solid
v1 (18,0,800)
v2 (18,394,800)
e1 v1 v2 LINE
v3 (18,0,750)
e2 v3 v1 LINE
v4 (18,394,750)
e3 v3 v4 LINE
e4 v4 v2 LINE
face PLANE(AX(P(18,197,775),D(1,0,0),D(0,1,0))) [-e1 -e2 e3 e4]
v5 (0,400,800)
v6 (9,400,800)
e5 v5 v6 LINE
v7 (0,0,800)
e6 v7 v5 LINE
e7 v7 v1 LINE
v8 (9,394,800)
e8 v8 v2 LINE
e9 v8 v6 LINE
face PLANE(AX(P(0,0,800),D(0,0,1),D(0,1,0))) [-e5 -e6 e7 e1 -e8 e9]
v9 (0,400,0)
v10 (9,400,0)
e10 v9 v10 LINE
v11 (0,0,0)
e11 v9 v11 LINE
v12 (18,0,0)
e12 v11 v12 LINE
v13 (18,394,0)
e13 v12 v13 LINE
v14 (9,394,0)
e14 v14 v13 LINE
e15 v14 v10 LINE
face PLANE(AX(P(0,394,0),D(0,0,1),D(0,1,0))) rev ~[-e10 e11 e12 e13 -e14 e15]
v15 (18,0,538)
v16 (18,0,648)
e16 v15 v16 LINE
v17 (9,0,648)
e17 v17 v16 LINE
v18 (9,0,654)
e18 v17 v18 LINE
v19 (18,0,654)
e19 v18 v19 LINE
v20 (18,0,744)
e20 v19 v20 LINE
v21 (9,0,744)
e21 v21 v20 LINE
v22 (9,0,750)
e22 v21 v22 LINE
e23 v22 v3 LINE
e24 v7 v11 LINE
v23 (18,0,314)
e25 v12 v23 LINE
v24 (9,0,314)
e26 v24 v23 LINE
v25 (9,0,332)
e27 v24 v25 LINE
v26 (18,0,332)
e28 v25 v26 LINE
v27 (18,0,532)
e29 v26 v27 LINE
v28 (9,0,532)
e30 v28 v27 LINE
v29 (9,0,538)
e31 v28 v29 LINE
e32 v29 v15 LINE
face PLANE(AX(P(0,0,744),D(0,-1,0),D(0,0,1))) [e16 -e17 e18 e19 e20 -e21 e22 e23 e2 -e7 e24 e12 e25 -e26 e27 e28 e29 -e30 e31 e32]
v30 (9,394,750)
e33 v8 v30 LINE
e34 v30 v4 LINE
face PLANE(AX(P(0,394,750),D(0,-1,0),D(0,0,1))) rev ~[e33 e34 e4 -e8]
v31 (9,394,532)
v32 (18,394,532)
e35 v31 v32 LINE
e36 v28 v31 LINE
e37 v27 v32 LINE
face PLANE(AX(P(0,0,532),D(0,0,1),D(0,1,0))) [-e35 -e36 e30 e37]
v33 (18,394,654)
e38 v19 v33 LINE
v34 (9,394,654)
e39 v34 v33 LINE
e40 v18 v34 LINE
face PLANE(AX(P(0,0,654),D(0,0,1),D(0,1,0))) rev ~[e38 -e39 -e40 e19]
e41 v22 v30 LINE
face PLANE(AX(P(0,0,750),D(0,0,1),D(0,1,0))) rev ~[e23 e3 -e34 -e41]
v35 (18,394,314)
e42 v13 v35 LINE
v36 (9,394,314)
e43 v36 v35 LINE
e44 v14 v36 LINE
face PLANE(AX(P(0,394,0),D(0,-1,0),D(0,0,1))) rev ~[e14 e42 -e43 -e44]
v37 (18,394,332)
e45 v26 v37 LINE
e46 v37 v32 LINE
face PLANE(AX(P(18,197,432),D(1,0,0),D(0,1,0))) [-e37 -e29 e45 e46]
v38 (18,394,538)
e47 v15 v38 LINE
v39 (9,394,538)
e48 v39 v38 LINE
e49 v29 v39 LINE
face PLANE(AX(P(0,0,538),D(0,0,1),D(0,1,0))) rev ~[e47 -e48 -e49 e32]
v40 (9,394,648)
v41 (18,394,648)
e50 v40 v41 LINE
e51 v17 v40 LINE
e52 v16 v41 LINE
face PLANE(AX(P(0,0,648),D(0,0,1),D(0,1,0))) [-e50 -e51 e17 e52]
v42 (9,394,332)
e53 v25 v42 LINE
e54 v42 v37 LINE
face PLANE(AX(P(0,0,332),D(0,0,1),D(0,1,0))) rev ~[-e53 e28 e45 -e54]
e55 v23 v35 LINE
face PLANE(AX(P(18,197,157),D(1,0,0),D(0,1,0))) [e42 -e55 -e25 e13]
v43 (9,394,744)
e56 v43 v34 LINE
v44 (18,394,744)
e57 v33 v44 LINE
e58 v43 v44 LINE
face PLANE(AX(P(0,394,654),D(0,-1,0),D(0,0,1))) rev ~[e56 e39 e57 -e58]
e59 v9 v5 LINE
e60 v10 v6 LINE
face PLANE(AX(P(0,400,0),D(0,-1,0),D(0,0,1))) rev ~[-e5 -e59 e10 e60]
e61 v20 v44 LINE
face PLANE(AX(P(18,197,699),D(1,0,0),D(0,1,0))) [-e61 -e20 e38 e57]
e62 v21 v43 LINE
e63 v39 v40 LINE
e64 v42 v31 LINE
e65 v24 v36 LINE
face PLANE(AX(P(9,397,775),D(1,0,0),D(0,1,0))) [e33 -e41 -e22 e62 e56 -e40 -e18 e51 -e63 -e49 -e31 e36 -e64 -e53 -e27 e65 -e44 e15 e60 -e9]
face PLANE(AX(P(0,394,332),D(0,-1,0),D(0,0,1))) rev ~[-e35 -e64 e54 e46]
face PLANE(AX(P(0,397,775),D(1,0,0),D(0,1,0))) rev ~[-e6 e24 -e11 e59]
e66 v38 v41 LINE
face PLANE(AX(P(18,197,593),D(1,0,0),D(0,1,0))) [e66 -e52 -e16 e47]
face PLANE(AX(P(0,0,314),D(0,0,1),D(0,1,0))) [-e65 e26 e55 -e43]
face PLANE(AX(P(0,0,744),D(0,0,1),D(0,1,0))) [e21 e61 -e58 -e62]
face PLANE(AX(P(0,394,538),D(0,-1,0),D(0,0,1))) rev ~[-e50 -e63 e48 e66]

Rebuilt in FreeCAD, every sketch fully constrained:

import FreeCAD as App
import Part
import Sketcher
from FreeCAD import Vector


def add_polygon(sketch, points):
    """Adds a closed chain of lines whose ends are joined by coincident constraints."""
    first, n = sketch.GeometryCount, len(points)
    for a, b in zip(points, points[1:] + points[:1]):
        sketch.addGeometry(Part.LineSegment(App.Vector(*a, 0), App.Vector(*b, 0)), False)
    for i in range(n):
        sketch.addConstraint(Sketcher.Constraint("Coincident", first + i, 2, first + (i + 1) % n, 1))

doc = App.newDocument("Part")
params = doc.addObject("Spreadsheet::Sheet", "Params")
for row, (alias, value) in enumerate([
    ("sketch1_width", "394 mm"),
    ("sketch1_height", "50 mm"),
    ("pad1_length", "18 mm"),
    ("sketch2_width", "394 mm"),
    ("sketch2_height", "90 mm"),
    ("pad2_length", "18 mm"),
    ("sketch3_width", "394 mm"),
    ("sketch3_height", "110 mm"),
    ("pad3_length", "18 mm"),
    ("sketch4_width", "394 mm"),
    ("sketch4_height", "200 mm"),
    ("pad4_length", "18 mm"),
    ("sketch5_width", "394 mm"),
    ("sketch5_height", "314 mm"),
    ("pad5_length", "18 mm"),
    ("sketch6_width", "394 mm"),
    ("sketch6_width2", "6 mm"),
    ("sketch6_height", "50 mm"),
    ("sketch6_height2", "90 mm"),
    ("sketch6_height3", "110 mm"),
    ("pad6_length", "9 mm"),
], start=1):
    params.set(f"A{row}", alias)
    params.set(f"B{row}", "=" + value)
    params.setAlias(f"B{row}", alias)

body = doc.addObject("PartDesign::Body", "Body")

sketch1 = doc.addObject("Sketcher::SketchObject", "Sketch")
body.addObject(sketch1)
sketch1.AttachmentSupport = (doc.YZ_Plane, [""])
sketch1.MapMode = "FlatFace"
add_polygon(sketch1, [(0, 800), (0, 750), (394, 750), (394, 800)])
sketch1.addConstraint([
    Sketcher.Constraint("Vertical", 0),
    Sketcher.Constraint("Horizontal", 1),
    Sketcher.Constraint("Vertical", 2),
    Sketcher.Constraint("Horizontal", 3),
    Sketcher.Constraint("PointOnObject", 0, 2, -2),
    Sketcher.Constraint("DistanceX", 1, 1, 1, 2, 394.0),
    Sketcher.Constraint("DistanceY", 0, 2, 0, 1, 50.0),
    Sketcher.Constraint("DistanceY", -1, 1, 0, 2, 750.0),
])
sketch1.setExpression("Constraints[9]", "Params.sketch1_width")
sketch1.setExpression("Constraints[10]", "Params.sketch1_height")
pad1 = doc.addObject("PartDesign::Pad", "Pad")
body.addObject(pad1)
pad1.Profile = sketch1
pad1.setExpression("Length", "Params.pad1_length")
body2 = doc.addObject("PartDesign::Body", "Body001")

sketch2 = doc.addObject("Sketcher::SketchObject", "Sketch001")
body2.addObject(sketch2)
sketch2.AttachmentSupport = (doc.getObject("YZ_Plane001"), [""])
sketch2.MapMode = "FlatFace"
add_polygon(sketch2, [(0, 744), (0, 654), (394, 654), (394, 744)])
sketch2.addConstraint([
    Sketcher.Constraint("Vertical", 0),
    Sketcher.Constraint("Horizontal", 1),
    Sketcher.Constraint("Vertical", 2),
    Sketcher.Constraint("Horizontal", 3),
    Sketcher.Constraint("PointOnObject", 0, 2, -2),
    Sketcher.Constraint("DistanceX", 1, 1, 1, 2, 394.0),
    Sketcher.Constraint("DistanceY", 0, 2, 0, 1, 90.0),
    Sketcher.Constraint("DistanceY", -1, 1, 0, 2, 654.0),
])
sketch2.setExpression("Constraints[9]", "Params.sketch2_width")
sketch2.setExpression("Constraints[10]", "Params.sketch2_height")
pad2 = doc.addObject("PartDesign::Pad", "Pad001")
body2.addObject(pad2)
pad2.Profile = sketch2
pad2.setExpression("Length", "Params.pad2_length")
body3 = doc.addObject("PartDesign::Body", "Body002")

sketch3 = doc.addObject("Sketcher::SketchObject", "Sketch002")
body3.addObject(sketch3)
sketch3.AttachmentSupport = (doc.getObject("YZ_Plane002"), [""])
sketch3.MapMode = "FlatFace"
add_polygon(sketch3, [(0, 648), (0, 538), (394, 538), (394, 648)])
sketch3.addConstraint([
    Sketcher.Constraint("Vertical", 0),
    Sketcher.Constraint("Horizontal", 1),
    Sketcher.Constraint("Vertical", 2),
    Sketcher.Constraint("Horizontal", 3),
    Sketcher.Constraint("PointOnObject", 0, 2, -2),
    Sketcher.Constraint("DistanceX", 1, 1, 1, 2, 394.0),
    Sketcher.Constraint("DistanceY", 0, 2, 0, 1, 110.0),
    Sketcher.Constraint("DistanceY", -1, 1, 0, 2, 538.0),
])
sketch3.setExpression("Constraints[9]", "Params.sketch3_width")
sketch3.setExpression("Constraints[10]", "Params.sketch3_height")
pad3 = doc.addObject("PartDesign::Pad", "Pad002")
body3.addObject(pad3)
pad3.Profile = sketch3
pad3.setExpression("Length", "Params.pad3_length")
body4 = doc.addObject("PartDesign::Body", "Body003")

sketch4 = doc.addObject("Sketcher::SketchObject", "Sketch003")
body4.addObject(sketch4)
sketch4.AttachmentSupport = (doc.getObject("YZ_Plane003"), [""])
sketch4.MapMode = "FlatFace"
add_polygon(sketch4, [(0, 532), (0, 332), (394, 332), (394, 532)])
sketch4.addConstraint([
    Sketcher.Constraint("Vertical", 0),
    Sketcher.Constraint("Horizontal", 1),
    Sketcher.Constraint("Vertical", 2),
    Sketcher.Constraint("Horizontal", 3),
    Sketcher.Constraint("PointOnObject", 0, 2, -2),
    Sketcher.Constraint("DistanceX", 1, 1, 1, 2, 394.0),
    Sketcher.Constraint("DistanceY", 0, 2, 0, 1, 200.0),
    Sketcher.Constraint("DistanceY", -1, 1, 0, 2, 332.0),
])
sketch4.setExpression("Constraints[9]", "Params.sketch4_width")
sketch4.setExpression("Constraints[10]", "Params.sketch4_height")
pad4 = doc.addObject("PartDesign::Pad", "Pad003")
body4.addObject(pad4)
pad4.Profile = sketch4
pad4.setExpression("Length", "Params.pad4_length")
body5 = doc.addObject("PartDesign::Body", "Body004")

sketch5 = doc.addObject("Sketcher::SketchObject", "Sketch004")
body5.addObject(sketch5)
sketch5.AttachmentSupport = (doc.getObject("YZ_Plane004"), [""])
sketch5.MapMode = "FlatFace"
add_polygon(sketch5, [(0, 314), (0, 0), (394, 0), (394, 314)])
sketch5.addConstraint([
    Sketcher.Constraint("Vertical", 0),
    Sketcher.Constraint("Horizontal", 1),
    Sketcher.Constraint("Vertical", 2),
    Sketcher.Constraint("Horizontal", 3),
    Sketcher.Constraint("Coincident", 0, 2, -1, 1),
    Sketcher.Constraint("DistanceX", 1, 1, 1, 2, 394.0),
    Sketcher.Constraint("DistanceY", 0, 2, 0, 1, 314.0),
])
sketch5.setExpression("Constraints[9]", "Params.sketch5_width")
sketch5.setExpression("Constraints[10]", "Params.sketch5_height")
pad5 = doc.addObject("PartDesign::Pad", "Pad004")
body5.addObject(pad5)
pad5.Profile = sketch5
pad5.setExpression("Length", "Params.pad5_length")
body.AllowCompound = True
doc.recompute()

boolean = doc.addObject("PartDesign::Boolean", "Boolean")
body.addObject(boolean)
boolean.Type = "Fuse"
boolean.addObjects([body2])
doc.recompute()

boolean2 = doc.addObject("PartDesign::Boolean", "Boolean001")
body.addObject(boolean2)
boolean2.Type = "Fuse"
boolean2.addObjects([body3])
doc.recompute()

boolean3 = doc.addObject("PartDesign::Boolean", "Boolean002")
body.addObject(boolean3)
boolean3.Type = "Fuse"
boolean3.addObjects([body4])
doc.recompute()

boolean4 = doc.addObject("PartDesign::Boolean", "Boolean003")
body.addObject(boolean4)
boolean4.Type = "Fuse"
boolean4.addObjects([body5])

sketch6 = doc.addObject("Sketcher::SketchObject", "Sketch005")
body.addObject(sketch6)
sketch6.AttachmentSupport = (doc.YZ_Plane, [""])
sketch6.MapMode = "FlatFace"
add_polygon(sketch6, [(394, 800), (394, 750), (0, 750), (0, 744), (394, 744), (394, 654), (0, 654), (0, 648), (394, 648), (394, 538), (0, 538), (0, 532), (394, 532), (394, 332), (0, 332), (0, 314), (394, 314), (394, 0), (400, 0), (400, 800)])
sketch6.addConstraint([
    Sketcher.Constraint("Vertical", 0),
    Sketcher.Constraint("Horizontal", 1),
    Sketcher.Constraint("Vertical", 2),
    Sketcher.Constraint("Horizontal", 3),
    Sketcher.Constraint("Vertical", 4),
    Sketcher.Constraint("Horizontal", 5),
    Sketcher.Constraint("Vertical", 6),
    Sketcher.Constraint("Horizontal", 7),
    Sketcher.Constraint("Vertical", 8),
    Sketcher.Constraint("Horizontal", 9),
    Sketcher.Constraint("Vertical", 10),
    Sketcher.Constraint("Horizontal", 11),
    Sketcher.Constraint("Vertical", 12),
    Sketcher.Constraint("Horizontal", 13),
    Sketcher.Constraint("Vertical", 14),
    Sketcher.Constraint("Horizontal", 15),
    Sketcher.Constraint("Vertical", 16),
    Sketcher.Constraint("Horizontal", 17),
    Sketcher.Constraint("Vertical", 18),
    Sketcher.Constraint("Horizontal", 19),
    Sketcher.Constraint("PointOnObject", 1, 2, -2),
    Sketcher.Constraint("PointOnObject", 5, 2, -2),
    Sketcher.Constraint("PointOnObject", 9, 2, -2),
    Sketcher.Constraint("PointOnObject", 13, 2, -2),
    Sketcher.Constraint("PointOnObject", 16, 2, -1),
    Sketcher.Constraint("Vertical", 0, 2, 3, 2),
    Sketcher.Constraint("Vertical", 4, 2, 7, 2),
    Sketcher.Constraint("Vertical", 8, 2, 11, 2),
    Sketcher.Constraint("Vertical", 12, 2, 15, 2),
    Sketcher.Constraint("Equal", 19, 2),
    Sketcher.Constraint("Equal", 2, 6),
    Sketcher.Constraint("Equal", 6, 10),
    Sketcher.Constraint("DistanceX", 1, 2, 1, 1, 394.0),
    Sketcher.Constraint("DistanceX", 17, 1, 17, 2, 6.0),
    Sketcher.Constraint("DistanceY", 0, 2, 0, 1, 50.0),
    Sketcher.Constraint("DistanceY", 4, 2, 4, 1, 90.0),
    Sketcher.Constraint("DistanceY", 8, 2, 8, 1, 110.0),
    Sketcher.Constraint("DistanceY", 12, 2, 12, 1, 200.0),
    Sketcher.Constraint("DistanceY", 14, 2, 14, 1, 18.0),
    Sketcher.Constraint("DistanceY", 16, 2, 16, 1, 314.0),
])
sketch6.setExpression("Constraints[52]", "Params.sketch6_width")
sketch6.setExpression("Constraints[53]", "Params.sketch6_width2")
sketch6.setExpression("Constraints[54]", "Params.sketch6_height")
sketch6.setExpression("Constraints[55]", "Params.sketch6_height2")
sketch6.setExpression("Constraints[56]", "Params.sketch6_height3")
pad6 = doc.addObject("PartDesign::Pad", "Pad005")
body.addObject(pad6)
pad6.Profile = sketch6
pad6.setExpression("Length", "Params.pad6_length")

doc.recompute()
